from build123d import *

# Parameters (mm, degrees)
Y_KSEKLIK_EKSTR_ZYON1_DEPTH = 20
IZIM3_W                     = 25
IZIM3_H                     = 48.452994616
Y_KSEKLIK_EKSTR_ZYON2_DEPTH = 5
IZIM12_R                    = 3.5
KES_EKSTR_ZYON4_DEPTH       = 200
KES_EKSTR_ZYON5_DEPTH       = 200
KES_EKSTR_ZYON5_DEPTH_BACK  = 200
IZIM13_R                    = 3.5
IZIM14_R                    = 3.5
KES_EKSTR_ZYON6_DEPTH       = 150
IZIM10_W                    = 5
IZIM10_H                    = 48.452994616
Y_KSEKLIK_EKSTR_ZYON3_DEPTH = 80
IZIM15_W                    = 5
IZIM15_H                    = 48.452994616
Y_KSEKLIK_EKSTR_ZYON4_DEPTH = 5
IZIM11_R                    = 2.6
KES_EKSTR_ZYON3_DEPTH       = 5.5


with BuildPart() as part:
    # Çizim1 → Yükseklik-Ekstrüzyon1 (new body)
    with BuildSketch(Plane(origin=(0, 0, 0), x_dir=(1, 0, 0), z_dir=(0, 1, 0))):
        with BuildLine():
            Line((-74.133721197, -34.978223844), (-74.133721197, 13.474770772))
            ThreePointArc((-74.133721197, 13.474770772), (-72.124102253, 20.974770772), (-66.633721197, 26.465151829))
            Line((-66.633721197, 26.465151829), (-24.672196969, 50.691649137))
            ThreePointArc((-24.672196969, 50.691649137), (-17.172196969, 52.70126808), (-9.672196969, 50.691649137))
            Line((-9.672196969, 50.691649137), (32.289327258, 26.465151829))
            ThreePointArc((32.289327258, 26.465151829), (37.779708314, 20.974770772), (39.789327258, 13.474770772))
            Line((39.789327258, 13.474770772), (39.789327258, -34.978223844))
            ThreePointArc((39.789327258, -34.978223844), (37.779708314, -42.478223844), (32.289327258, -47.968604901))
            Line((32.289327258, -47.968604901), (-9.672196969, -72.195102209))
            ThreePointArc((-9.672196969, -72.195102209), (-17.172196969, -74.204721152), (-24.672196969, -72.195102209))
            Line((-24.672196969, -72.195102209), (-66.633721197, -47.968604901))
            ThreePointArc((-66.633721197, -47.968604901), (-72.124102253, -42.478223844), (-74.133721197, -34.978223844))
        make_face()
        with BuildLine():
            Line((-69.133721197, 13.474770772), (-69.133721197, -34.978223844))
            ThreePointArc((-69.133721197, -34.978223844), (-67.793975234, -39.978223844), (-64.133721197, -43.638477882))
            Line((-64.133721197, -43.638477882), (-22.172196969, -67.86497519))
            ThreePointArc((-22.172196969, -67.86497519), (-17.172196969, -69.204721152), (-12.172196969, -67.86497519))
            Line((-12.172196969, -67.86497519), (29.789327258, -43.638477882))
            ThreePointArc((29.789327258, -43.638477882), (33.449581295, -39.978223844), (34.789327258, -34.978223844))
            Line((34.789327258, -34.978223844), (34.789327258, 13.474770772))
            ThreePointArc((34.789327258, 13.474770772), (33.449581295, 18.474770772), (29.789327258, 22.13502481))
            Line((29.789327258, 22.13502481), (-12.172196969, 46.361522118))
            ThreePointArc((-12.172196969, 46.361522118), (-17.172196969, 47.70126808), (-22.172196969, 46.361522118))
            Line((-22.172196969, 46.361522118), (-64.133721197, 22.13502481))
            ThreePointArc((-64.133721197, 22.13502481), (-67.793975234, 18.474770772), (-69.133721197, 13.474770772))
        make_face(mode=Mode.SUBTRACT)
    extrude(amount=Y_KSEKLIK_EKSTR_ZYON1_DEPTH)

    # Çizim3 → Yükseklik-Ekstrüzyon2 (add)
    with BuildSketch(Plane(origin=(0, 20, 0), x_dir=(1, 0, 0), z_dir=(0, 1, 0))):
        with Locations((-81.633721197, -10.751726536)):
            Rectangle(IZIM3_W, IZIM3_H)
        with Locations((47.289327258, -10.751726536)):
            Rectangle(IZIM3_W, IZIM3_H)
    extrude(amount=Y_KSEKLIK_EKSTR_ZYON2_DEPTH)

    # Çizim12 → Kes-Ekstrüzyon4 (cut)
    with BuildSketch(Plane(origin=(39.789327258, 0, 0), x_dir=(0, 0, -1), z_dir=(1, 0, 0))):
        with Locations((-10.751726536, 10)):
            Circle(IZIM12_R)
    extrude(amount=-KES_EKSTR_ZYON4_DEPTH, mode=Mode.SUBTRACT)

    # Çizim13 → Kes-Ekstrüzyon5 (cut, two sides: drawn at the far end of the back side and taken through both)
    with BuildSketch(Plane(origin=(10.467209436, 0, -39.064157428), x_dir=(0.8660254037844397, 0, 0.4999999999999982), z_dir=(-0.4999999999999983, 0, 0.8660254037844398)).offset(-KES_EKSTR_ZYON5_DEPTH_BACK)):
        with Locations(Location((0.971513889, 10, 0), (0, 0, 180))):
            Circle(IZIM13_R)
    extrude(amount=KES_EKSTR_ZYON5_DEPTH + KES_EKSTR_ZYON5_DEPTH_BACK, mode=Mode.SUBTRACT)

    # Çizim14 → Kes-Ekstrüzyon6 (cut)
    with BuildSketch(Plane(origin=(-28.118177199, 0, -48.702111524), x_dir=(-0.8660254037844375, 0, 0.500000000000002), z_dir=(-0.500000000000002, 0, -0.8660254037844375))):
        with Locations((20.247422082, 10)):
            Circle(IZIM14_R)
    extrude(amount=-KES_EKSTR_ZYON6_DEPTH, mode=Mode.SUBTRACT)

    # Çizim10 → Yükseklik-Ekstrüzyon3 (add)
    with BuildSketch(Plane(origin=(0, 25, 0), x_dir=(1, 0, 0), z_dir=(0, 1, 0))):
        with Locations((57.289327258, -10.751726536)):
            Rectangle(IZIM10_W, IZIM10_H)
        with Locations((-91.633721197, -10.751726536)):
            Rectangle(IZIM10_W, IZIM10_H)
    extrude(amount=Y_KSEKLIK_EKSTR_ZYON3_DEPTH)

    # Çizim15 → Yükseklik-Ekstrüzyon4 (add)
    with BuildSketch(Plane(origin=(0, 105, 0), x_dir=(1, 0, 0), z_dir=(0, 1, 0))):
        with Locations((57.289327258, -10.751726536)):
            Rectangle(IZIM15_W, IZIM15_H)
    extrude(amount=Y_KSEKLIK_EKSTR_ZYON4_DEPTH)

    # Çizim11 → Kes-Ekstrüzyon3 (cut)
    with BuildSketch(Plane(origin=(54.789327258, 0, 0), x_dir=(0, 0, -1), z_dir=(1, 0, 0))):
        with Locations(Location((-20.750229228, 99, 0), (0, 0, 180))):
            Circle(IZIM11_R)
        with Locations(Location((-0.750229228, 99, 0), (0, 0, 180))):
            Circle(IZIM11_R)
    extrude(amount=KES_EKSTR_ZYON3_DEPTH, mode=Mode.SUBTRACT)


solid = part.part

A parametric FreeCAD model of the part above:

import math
import FreeCAD as App
import Part
import Sketcher

V = App.Vector
Q = App.Units.Quantity

doc = App.newDocument("Part")
body = doc.addObject("PartDesign::Body", "Body")

sketch1 = body.newObject("Sketcher::SketchObject", "Sketch")
sketch1.AttachmentSupport = (doc.getObject("XZ_Plane"), [""])
sketch1.MapMode = "FlatFace"
sketch1.addGeometry(Part.LineSegment(V(-74, -13, 0), V(-74, 35, 0)), False)
sketch1.addGeometry(Part.ArcOfCircle(Part.Circle(V(-59, 35, 0), V(0, 0, 1), 15), math.radians(120), math.radians(180)), False)
sketch1.addGeometry(Part.LineSegment(V(-67, 48, 0), V(-25, 72, 0)), False)
sketch1.addGeometry(Part.ArcOfCircle(Part.Circle(V(-17, 59, 0), V(0, 0, 1), 15), math.radians(60), math.radians(120)), False)
sketch1.addGeometry(Part.LineSegment(V(-10, 72, 0), V(32, 48, 0)), False)
sketch1.addGeometry(Part.ArcOfCircle(Part.Circle(V(25, 35, 0), V(0, 0, 1), 15), math.radians(0), math.radians(60)), False)
sketch1.addGeometry(Part.LineSegment(V(40, 35, 0), V(40, -13, 0)), False)
sketch1.addGeometry(Part.ArcOfCircle(Part.Circle(V(25, -13, 0), V(0, 0, 1), 15), math.radians(-60), math.radians(0)), False)
sketch1.addGeometry(Part.LineSegment(V(32, -26, 0), V(-10, -51, 0)), False)
sketch1.addGeometry(Part.ArcOfCircle(Part.Circle(V(-17, -38, 0), V(0, 0, 1), 15), math.radians(-120), math.radians(-60)), False)
sketch1.addGeometry(Part.LineSegment(V(-25, -51, 0), V(-67, -26, 0)), False)
sketch1.addGeometry(Part.ArcOfCircle(Part.Circle(V(-59, -13, 0), V(0, 0, 1), 15), math.radians(-180), math.radians(-120)), False)
sketch1.addGeometry(Part.ArcOfCircle(Part.Circle(V(-59, -13, 0), V(0, 0, 1), 10), math.radians(-180), math.radians(-120)), False)
sketch1.addGeometry(Part.LineSegment(V(-64, -22, 0), V(-22, -46, 0)), False)
sketch1.addGeometry(Part.ArcOfCircle(Part.Circle(V(-17, -38, 0), V(0, 0, 1), 10), math.radians(-120), math.radians(-60)), False)
sketch1.addGeometry(Part.LineSegment(V(-12, -46, 0), V(30, -22, 0)), False)
sketch1.addGeometry(Part.ArcOfCircle(Part.Circle(V(25, -13, 0), V(0, 0, 1), 10), math.radians(-60), math.radians(0)), False)
sketch1.addGeometry(Part.LineSegment(V(35, -13, 0), V(35, 35, 0)), False)
sketch1.addGeometry(Part.ArcOfCircle(Part.Circle(V(25, 35, 0), V(0, 0, 1), 10), math.radians(0), math.radians(60)), False)
sketch1.addGeometry(Part.LineSegment(V(30, 44, 0), V(-12, 68, 0)), False)
sketch1.addGeometry(Part.ArcOfCircle(Part.Circle(V(-17, 59, 0), V(0, 0, 1), 10), math.radians(60), math.radians(120)), False)
sketch1.addGeometry(Part.LineSegment(V(-22, 68, 0), V(-64, 44, 0)), False)
sketch1.addGeometry(Part.ArcOfCircle(Part.Circle(V(-59, 35, 0), V(0, 0, 1), 10), math.radians(120), math.radians(180)), False)
sketch1.addGeometry(Part.LineSegment(V(-69, 35, 0), V(-69, -13, 0)), False)
sketch1.addConstraint(Sketcher.Constraint("Tangent", 0, 2, 1, 2))
sketch1.addConstraint(Sketcher.Constraint("Tangent", 1, 1, 2, 1))
sketch1.addConstraint(Sketcher.Constraint("Tangent", 2, 2, 3, 2))
sketch1.addConstraint(Sketcher.Constraint("Tangent", 3, 1, 4, 1))
sketch1.addConstraint(Sketcher.Constraint("Tangent", 4, 2, 5, 2))
sketch1.addConstraint(Sketcher.Constraint("Tangent", 5, 1, 6, 1))
sketch1.addConstraint(Sketcher.Constraint("Tangent", 6, 2, 7, 2))
sketch1.addConstraint(Sketcher.Constraint("Tangent", 7, 1, 8, 1))
sketch1.addConstraint(Sketcher.Constraint("Tangent", 8, 2, 9, 2))
sketch1.addConstraint(Sketcher.Constraint("Tangent", 9, 1, 10, 1))
sketch1.addConstraint(Sketcher.Constraint("Tangent", 10, 2, 11, 2))
sketch1.addConstraint(Sketcher.Constraint("Tangent", 11, 1, 0, 1))
sketch1.addConstraint(Sketcher.Constraint("Tangent", 12, 2, 13, 1))
sketch1.addConstraint(Sketcher.Constraint("Tangent", 13, 2, 14, 1))
sketch1.addConstraint(Sketcher.Constraint("Tangent", 14, 2, 15, 1))
sketch1.addConstraint(Sketcher.Constraint("Tangent", 15, 2, 16, 1))
sketch1.addConstraint(Sketcher.Constraint("Tangent", 16, 2, 17, 1))
sketch1.addConstraint(Sketcher.Constraint("Tangent", 17, 2, 18, 1))
sketch1.addConstraint(Sketcher.Constraint("Tangent", 18, 2, 19, 1))
sketch1.addConstraint(Sketcher.Constraint("Tangent", 19, 2, 20, 1))
sketch1.addConstraint(Sketcher.Constraint("Tangent", 20, 2, 21, 1))
sketch1.addConstraint(Sketcher.Constraint("Tangent", 21, 2, 22, 1))
sketch1.addConstraint(Sketcher.Constraint("Tangent", 22, 2, 23, 1))
sketch1.addConstraint(Sketcher.Constraint("Tangent", 23, 2, 12, 1))
sketch1.addConstraint(Sketcher.Constraint("Vertical", 0))
sketch1.addConstraint(Sketcher.Constraint("Vertical", 6))
sketch1.addConstraint(Sketcher.Constraint("Vertical", 17))
sketch1.addConstraint(Sketcher.Constraint("Vertical", 23))
sketch1.addConstraint(Sketcher.Constraint("Coincident", 12, 3, 11, 3))
sketch1.addConstraint(Sketcher.Constraint("Coincident", 14, 3, 9, 3))
sketch1.addConstraint(Sketcher.Constraint("Coincident", 16, 3, 7, 3))
sketch1.addConstraint(Sketcher.Constraint("Coincident", 18, 3, 5, 3))
sketch1.addConstraint(Sketcher.Constraint("Coincident", 20, 3, 3, 3))
sketch1.addConstraint(Sketcher.Constraint("Coincident", 22, 3, 1, 3))
sketch1.addConstraint(Sketcher.Constraint("Equal", 1, 3))
sketch1.addConstraint(Sketcher.Constraint("Equal", 3, 5))
sketch1.addConstraint(Sketcher.Constraint("Equal", 5, 7))
sketch1.addConstraint(Sketcher.Constraint("Equal", 7, 9))
sketch1.addConstraint(Sketcher.Constraint("Equal", 9, 11))
sketch1.addConstraint(Sketcher.Constraint("Equal", 12, 14))
sketch1.addConstraint(Sketcher.Constraint("Equal", 14, 16))
sketch1.addConstraint(Sketcher.Constraint("Equal", 18, 20))
sketch1.addConstraint(Sketcher.Constraint("Parallel", 2, 8))
sketch1.addConstraint(Sketcher.Constraint("Parallel", 4, 10))
sketch1.addConstraint(Sketcher.Constraint("Horizontal", 1, 3, 5, 3))
sketch1.addConstraint(Sketcher.Constraint("Horizontal", 7, 3, 11, 3))
sketch1.addConstraint(Sketcher.Constraint("Horizontal", 2, 2, 3, 1))
sketch1.addConstraint(Sketcher.Constraint("Radius", 1, Q("15 mm")))
sketch1.addConstraint(Sketcher.Constraint("Radius", 12, Q("10 mm")))
sketch1.addConstraint(Sketcher.Constraint("Angle", 2, Q("30 deg")))
sketch1.addConstraint(Sketcher.Constraint("DistanceY", 0, 1, 0, 2, Q("48.452995 mm")))
sketch1.addConstraint(Sketcher.Constraint("DistanceX", 1, 3, -1, 1, Q("59.133721 mm")))
sketch1.addConstraint(Sketcher.Constraint("DistanceY", -1, 1, 3, 3, Q("59.204721 mm")))
sketch1.addConstraint(Sketcher.Constraint("DistanceY", 7, 3, -1, 1, Q("13.474771 mm")))
pad1 = body.newObject("PartDesign::Pad", "Pad")
pad1.Profile = sketch1
pad1.Length = 20
pad1.Reversed = True

sketch2 = body.newObject("Sketcher::SketchObject", "Sketch001")
sketch2.AttachmentSupport = (doc.getObject("XZ_Plane"), [""])
sketch2.MapMode = "FlatFace"
sketch2.AttachmentOffset = App.Placement(V(0, 0, -20), App.Rotation())
sketch2.addGeometry(Part.LineSegment(V(-94, -13, 0), V(-94, 35, 0)), False)
sketch2.addGeometry(Part.LineSegment(V(-94, 35, 0), V(-69, 35, 0)), False)
sketch2.addGeometry(Part.LineSegment(V(-69, 35, 0), V(-69, -13, 0)), False)
sketch2.addGeometry(Part.LineSegment(V(-69, -13, 0), V(-94, -13, 0)), False)
sketch2.addGeometry(Part.LineSegment(V(35, -13, 0), V(35, 35, 0)), False)
sketch2.addGeometry(Part.LineSegment(V(35, 35, 0), V(60, 35, 0)), False)
sketch2.addGeometry(Part.LineSegment(V(60, 35, 0), V(60, -13, 0)), False)
sketch2.addGeometry(Part.LineSegment(V(60, -13, 0), V(35, -13, 0)), False)
sketch2.addConstraint(Sketcher.Constraint("Coincident", 0, 2, 1, 1))
sketch2.addConstraint(Sketcher.Constraint("Coincident", 1, 2, 2, 1))
sketch2.addConstraint(Sketcher.Constraint("Coincident", 2, 2, 3, 1))
sketch2.addConstraint(Sketcher.Constraint("Coincident", 3, 2, 0, 1))
sketch2.addConstraint(Sketcher.Constraint("Coincident", 4, 2, 5, 1))
sketch2.addConstraint(Sketcher.Constraint("Coincident", 5, 2, 6, 1))
sketch2.addConstraint(Sketcher.Constraint("Coincident", 6, 2, 7, 1))
sketch2.addConstraint(Sketcher.Constraint("Coincident", 7, 2, 4, 1))
sketch2.addConstraint(Sketcher.Constraint("Vertical", 0))
sketch2.addConstraint(Sketcher.Constraint("Horizontal", 1))
sketch2.addConstraint(Sketcher.Constraint("Vertical", 2))
sketch2.addConstraint(Sketcher.Constraint("Horizontal", 3))
sketch2.addConstraint(Sketcher.Constraint("Vertical", 4))
sketch2.addConstraint(Sketcher.Constraint("Horizontal", 5))
sketch2.addConstraint(Sketcher.Constraint("Vertical", 6))
sketch2.addConstraint(Sketcher.Constraint("Horizontal", 7))
sketch2.addConstraint(Sketcher.Constraint("Horizontal", 1, 2, 4, 2))
sketch2.addConstraint(Sketcher.Constraint("Horizontal", 3, 2, 6, 2))
sketch2.addConstraint(Sketcher.Constraint("Equal", 3, 5))
sketch2.addConstraint(Sketcher.Constraint("DistanceX", 1, 1, 1, 2, Q("25 mm")))
sketch2.addConstraint(Sketcher.Constraint("DistanceY", 0, 1, 0, 2, Q("48.452995 mm")))
sketch2.addConstraint(Sketcher.Constraint("DistanceX", 0, 2, -1, 1, Q("94.133721 mm")))
sketch2.addConstraint(Sketcher.Constraint("DistanceY", 2, 2, -1, 1, Q("13.474771 mm")))
sketch2.addConstraint(Sketcher.Constraint("DistanceX", 1, 2, 4, 2, Q("103.923048 mm")))
pad2 = body.newObject("PartDesign::Pad", "Pad001")
pad2.Profile = sketch2
pad2.Length = 5
pad2.Reversed = True

sketch3 = body.newObject("Sketcher::SketchObject", "Sketch002")
sketch3.AttachmentSupport = (doc.getObject("YZ_Plane"), [""])
sketch3.MapMode = "FlatFace"
sketch3.AttachmentOffset = App.Placement(V(0, 0, 39.789327), App.Rotation())
sketch3.addGeometry(Part.Circle(V(10, 10.8, 0), V(0, 0, 1), 3.5), False)
sketch3.addConstraint(Sketcher.Constraint("Diameter", 0, Q("7 mm")))
sketch3.addConstraint(Sketcher.Constraint("DistanceX", -1, 1, 0, 3, Q("10 mm")))
sketch3.addConstraint(Sketcher.Constraint("DistanceY", -1, 1, 0, 3, Q("10.751727 mm")))
pocket1 = body.newObject("PartDesign::Pocket", "Pocket")
pocket1.Profile = sketch3
pocket1.Length = 200

sketch4 = body.newObject("Sketcher::SketchObject", "Sketch003")
sketch4.Placement = App.Placement(V(10.467209, 0, -39.064157), App.Rotation(V(0.866025404, 0, 0.5), V(0, 1, 0), V(-0.5, 0, 0.866025404), "ZXY"))
sketch4.addGeometry(Part.Circle(V(1, 10, 0), V(0, 0, 1), 3.5), False)
sketch4.addConstraint(Sketcher.Constraint("Diameter", 0, Q("7 mm")))
sketch4.addConstraint(Sketcher.Constraint("DistanceY", -1, 1, 0, 3, Q("10 mm")))
sketch4.addConstraint(Sketcher.Constraint("DistanceX", -1, 1, 0, 3, Q("0.971514 mm")))
pocket2 = body.newObject("PartDesign::Pocket", "Pocket001")
pocket2.Profile = sketch4
pocket2.Type = "ThroughAll"
pocket2.Midplane = True

sketch5 = body.newObject("Sketcher::SketchObject", "Sketch004")
sketch5.Placement = App.Placement(V(-28.118177, 0, -48.702112), App.Rotation(V(-0.866025404, 0, 0.5), V(0, 1, 0), V(-0.5, 0, -0.866025404), "ZXY"))
sketch5.addGeometry(Part.Circle(V(20.2, 10, 0), V(0, 0, 1), 3.5), False)
sketch5.addConstraint(Sketcher.Constraint("Diameter", 0, Q("7 mm")))
sketch5.addConstraint(Sketcher.Constraint("DistanceY", -1, 1, 0, 3, Q("10 mm")))
sketch5.addConstraint(Sketcher.Constraint("DistanceX", -1, 1, 0, 3, Q("20.247422 mm")))
pocket3 = body.newObject("PartDesign::Pocket", "Pocket002")
pocket3.Profile = sketch5
pocket3.Length = 150

sketch6 = body.newObject("Sketcher::SketchObject", "Sketch005")
sketch6.AttachmentSupport = (doc.getObject("XZ_Plane"), [""])
sketch6.MapMode = "FlatFace"
sketch6.AttachmentOffset = App.Placement(V(0, 0, -25), App.Rotation())
sketch6.addGeometry(Part.LineSegment(V(55, -13, 0), V(55, 35, 0)), False)
sketch6.addGeometry(Part.LineSegment(V(55, 35, 0), V(60, 35, 0)), False)
sketch6.addGeometry(Part.LineSegment(V(60, 35, 0), V(60, -13, 0)), False)
sketch6.addGeometry(Part.LineSegment(V(60, -13, 0), V(55, -13, 0)), False)
sketch6.addGeometry(Part.LineSegment(V(-94, -13, 0), V(-94, 35, 0)), False)
sketch6.addGeometry(Part.LineSegment(V(-94, 35, 0), V(-89, 35, 0)), False)
sketch6.addGeometry(Part.LineSegment(V(-89, 35, 0), V(-89, -13, 0)), False)
sketch6.addGeometry(Part.LineSegment(V(-89, -13, 0), V(-94, -13, 0)), False)
sketch6.addConstraint(Sketcher.Constraint("Coincident", 0, 2, 1, 1))
sketch6.addConstraint(Sketcher.Constraint("Coincident", 1, 2, 2, 1))
sketch6.addConstraint(Sketcher.Constraint("Coincident", 2, 2, 3, 1))
sketch6.addConstraint(Sketcher.Constraint("Coincident", 3, 2, 0, 1))
sketch6.addConstraint(Sketcher.Constraint("Coincident", 4, 2, 5, 1))
sketch6.addConstraint(Sketcher.Constraint("Coincident", 5, 2, 6, 1))
sketch6.addConstraint(Sketcher.Constraint("Coincident", 6, 2, 7, 1))
sketch6.addConstraint(Sketcher.Constraint("Coincident", 7, 2, 4, 1))
sketch6.addConstraint(Sketcher.Constraint("Vertical", 0))
sketch6.addConstraint(Sketcher.Constraint("Horizontal", 1))
sketch6.addConstraint(Sketcher.Constraint("Vertical", 2))
sketch6.addConstraint(Sketcher.Constraint("Horizontal", 3))
sketch6.addConstraint(Sketcher.Constraint("Vertical", 4))
sketch6.addConstraint(Sketcher.Constraint("Horizontal", 5))
sketch6.addConstraint(Sketcher.Constraint("Vertical", 6))
sketch6.addConstraint(Sketcher.Constraint("Horizontal", 7))
sketch6.addConstraint(Sketcher.Constraint("Horizontal", 1, 2, 4, 2))
sketch6.addConstraint(Sketcher.Constraint("Horizontal", 3, 2, 6, 2))
sketch6.addConstraint(Sketcher.Constraint("Equal", 3, 5))
sketch6.addConstraint(Sketcher.Constraint("DistanceX", 1, 1, 1, 2, Q("5 mm")))
sketch6.addConstraint(Sketcher.Constraint("DistanceY", 0, 1, 0, 2, Q("48.452995 mm")))
sketch6.addConstraint(Sketcher.Constraint("DistanceY", 2, 2, -1, 1, Q("13.474771 mm")))
sketch6.addConstraint(Sketcher.Constraint("DistanceX", 4, 2, -1, 1, Q("94.133721 mm")))
sketch6.addConstraint(Sketcher.Constraint("DistanceX", 4, 2, 0, 2, Q("148.923048 mm")))
pad3 = body.newObject("PartDesign::Pad", "Pad002")
pad3.Profile = sketch6
pad3.Length = 80
pad3.Reversed = True

sketch7 = body.newObject("Sketcher::SketchObject", "Sketch006")
sketch7.AttachmentSupport = (doc.getObject("XZ_Plane"), [""])
sketch7.MapMode = "FlatFace"
sketch7.AttachmentOffset = App.Placement(V(0, 0, -105), App.Rotation())
sketch7.addGeometry(Part.LineSegment(V(55, -13, 0), V(55, 35, 0)), False)
sketch7.addGeometry(Part.LineSegment(V(55, 35, 0), V(60, 35, 0)), False)
sketch7.addGeometry(Part.LineSegment(V(60, 35, 0), V(60, -13, 0)), False)
sketch7.addGeometry(Part.LineSegment(V(60, -13, 0), V(55, -13, 0)), False)
sketch7.addConstraint(Sketcher.Constraint("Coincident", 0, 2, 1, 1))
sketch7.addConstraint(Sketcher.Constraint("Coincident", 1, 2, 2, 1))
sketch7.addConstraint(Sketcher.Constraint("Coincident", 2, 2, 3, 1))
sketch7.addConstraint(Sketcher.Constraint("Coincident", 3, 2, 0, 1))
sketch7.addConstraint(Sketcher.Constraint("Vertical", 0))
sketch7.addConstraint(Sketcher.Constraint("Horizontal", 1))
sketch7.addConstraint(Sketcher.Constraint("Vertical", 2))
sketch7.addConstraint(Sketcher.Constraint("Horizontal", 3))
sketch7.addConstraint(Sketcher.Constraint("DistanceX", 1, 1, 1, 2, Q("5 mm")))
sketch7.addConstraint(Sketcher.Constraint("DistanceY", 0, 1, 0, 2, Q("48.452995 mm")))
sketch7.addConstraint(Sketcher.Constraint("DistanceY", 2, 2, -1, 1, Q("13.474771 mm")))
sketch7.addConstraint(Sketcher.Constraint("DistanceX", -1, 1, 0, 2, Q("54.789327 mm")))
pad4 = body.newObject("PartDesign::Pad", "Pad003")
pad4.Profile = sketch7
pad4.Length = 5
pad4.Reversed = True

sketch8 = body.newObject("Sketcher::SketchObject", "Sketch007")
sketch8.AttachmentSupport = (doc.getObject("YZ_Plane"), [""])
sketch8.MapMode = "FlatFace"
sketch8.AttachmentOffset = App.Placement(V(0, 0, 54.789327), App.Rotation())
sketch8.addGeometry(Part.Circle(V(99, 20.8, 0), V(0, 0, 1), 2.6), False)
sketch8.addGeometry(Part.Circle(V(99, 0.8, 0), V(0, 0, 1), 2.6), False)
sketch8.addConstraint(Sketcher.Constraint("Equal", 0, 1))
sketch8.addConstraint(Sketcher.Constraint("Vertical", 0, 3, 1, 3))
sketch8.addConstraint(Sketcher.Constraint("Diameter", 0, Q("5.2 mm")))
sketch8.addConstraint(Sketcher.Constraint("DistanceX", -1, 1, 0, 3, Q("99 mm")))
sketch8.addConstraint(Sketcher.Constraint("DistanceY", 1, 3, 0, 3, Q("20 mm")))
sketch8.addConstraint(Sketcher.Constraint("DistanceY", -1, 1, 0, 3, Q("20.750229 mm")))
pocket4 = body.newObject("PartDesign::Pocket", "Pocket003")
pocket4.Profile = sketch8
pocket4.Length = 5.5
pocket4.Reversed = True

doc.recompute()
